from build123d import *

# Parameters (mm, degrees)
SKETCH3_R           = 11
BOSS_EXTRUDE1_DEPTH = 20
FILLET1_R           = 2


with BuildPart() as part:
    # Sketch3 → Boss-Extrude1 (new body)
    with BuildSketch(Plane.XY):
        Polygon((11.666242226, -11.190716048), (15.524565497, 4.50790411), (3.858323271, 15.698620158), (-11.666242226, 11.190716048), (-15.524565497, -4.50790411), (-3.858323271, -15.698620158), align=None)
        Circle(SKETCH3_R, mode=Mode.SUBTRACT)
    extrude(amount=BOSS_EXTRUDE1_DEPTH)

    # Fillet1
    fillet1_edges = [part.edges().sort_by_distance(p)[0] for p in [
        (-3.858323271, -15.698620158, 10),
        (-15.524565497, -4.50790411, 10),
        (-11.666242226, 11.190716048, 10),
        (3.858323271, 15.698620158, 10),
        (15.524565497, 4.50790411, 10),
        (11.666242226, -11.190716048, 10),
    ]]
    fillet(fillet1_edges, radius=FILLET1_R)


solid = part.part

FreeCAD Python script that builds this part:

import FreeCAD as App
import Part
import Sketcher
Q = App.Units.Quantity


def edges_at(feature, points):
    """Names of the edges that pass closest to the given points."""
    edges = feature.Shape.Edges
    near = lambda p: min(range(len(edges)), key=lambda i: edges[i].distToShape(Part.Vertex(*p))[0])
    return sorted({f"Edge{near(p) + 1}" for p in points})


def add_polygon(sketch, points):
    """Adds a closed chain of lines whose ends are joined by coincident constraints."""
    first, n = sketch.GeometryCount, len(points)
    for a, b in zip(points, points[1:] + points[:1]):
        sketch.addGeometry(Part.LineSegment(App.Vector(*a, 0), App.Vector(*b, 0)), False)
    for i in range(n):
        sketch.addConstraint(Sketcher.Constraint("Coincident", first + i, 2, first + (i + 1) % n, 1))

doc = App.newDocument("Part")
params = doc.addObject("Spreadsheet::Sheet", "Params")
for row, (alias, value) in enumerate([
    ("sketch1_diameter", "22 mm"),
    ("pad1_length", "20 mm"),
    ("fillet_radius", "2 mm"),
], start=1):
    params.set(f"A{row}", alias)
    params.set(f"B{row}", "=" + value)
    params.setAlias(f"B{row}", alias)

body = doc.addObject("PartDesign::Body", "Body")

# Sketch on XY plane
sketch1 = doc.addObject("Sketcher::SketchObject", "Sketch")
body.addObject(sketch1)
sketch1.AttachmentSupport = (doc.XY_Plane, [""])
sketch1.MapMode = "FlatFace"
add_polygon(sketch1, [(12, -11), (16, 5), (4, 16), (-12, 11), (-16, -5), (-4, -16)])  # lines 0-5
sketch1.addGeometry(Part.Circle(App.Vector(0, 0, 0), App.Vector(0, 0, 1), 11), False)  # 6
sketch1.addConstraint(Sketcher.Constraint("Coincident", 6, 3, -1, 1))
sketch1.addConstraint(Sketcher.Constraint("Symmetric", 0, 2, 3, 2, -1, 1))
sketch1.addConstraint(Sketcher.Constraint("Symmetric", 1, 2, 4, 2, -1, 1))
sketch1.addConstraint(Sketcher.Constraint("Symmetric", 2, 2, 5, 2, -1, 1))
sketch1.addConstraint(Sketcher.Constraint("Equal", 0, 1))
sketch1.addConstraint(Sketcher.Constraint("Equal", 1, 2))
sketch1.addConstraint(Sketcher.Constraint("Diameter", 6, Q("22 mm")))
sketch1.addConstraint(Sketcher.Constraint("DistanceY", -1, 1, 1, 2, Q("15.69862 mm")))
sketch1.addConstraint(Sketcher.Constraint("DistanceY", 0, 2, 2, 2, Q("6.682812 mm")))
sketch1.addConstraint(Sketcher.Constraint("DistanceY", 3, 2, 2, 2, Q("15.69862 mm")))
sketch1.addConstraint(Sketcher.Constraint("DistanceX", 3, 2, 1, 2, Q("19.382889 mm")))
sketch1.setExpression("Constraints[12]", "Params.sketch1_diameter")
pad1 = doc.addObject("PartDesign::Pad", "Pad")
body.addObject(pad1)
pad1.Profile = sketch1
pad1.setExpression("Length", "Params.pad1_length")
doc.recompute()

fillet = doc.addObject("PartDesign::Fillet", "Fillet")
body.addObject(fillet)
fillet.Base = (pad1, edges_at(pad1, [
    (-3.858, -15.699, 10),
    (-15.525, -4.508, 10),
    (-11.666, 11.191, 10),
    (3.858, 15.699, 10),
    (15.525, 4.508, 10),
    (11.666, -11.191, 10),
]))
fillet.setExpression("Radius", "Params.fillet_radius")

doc.recompute()
